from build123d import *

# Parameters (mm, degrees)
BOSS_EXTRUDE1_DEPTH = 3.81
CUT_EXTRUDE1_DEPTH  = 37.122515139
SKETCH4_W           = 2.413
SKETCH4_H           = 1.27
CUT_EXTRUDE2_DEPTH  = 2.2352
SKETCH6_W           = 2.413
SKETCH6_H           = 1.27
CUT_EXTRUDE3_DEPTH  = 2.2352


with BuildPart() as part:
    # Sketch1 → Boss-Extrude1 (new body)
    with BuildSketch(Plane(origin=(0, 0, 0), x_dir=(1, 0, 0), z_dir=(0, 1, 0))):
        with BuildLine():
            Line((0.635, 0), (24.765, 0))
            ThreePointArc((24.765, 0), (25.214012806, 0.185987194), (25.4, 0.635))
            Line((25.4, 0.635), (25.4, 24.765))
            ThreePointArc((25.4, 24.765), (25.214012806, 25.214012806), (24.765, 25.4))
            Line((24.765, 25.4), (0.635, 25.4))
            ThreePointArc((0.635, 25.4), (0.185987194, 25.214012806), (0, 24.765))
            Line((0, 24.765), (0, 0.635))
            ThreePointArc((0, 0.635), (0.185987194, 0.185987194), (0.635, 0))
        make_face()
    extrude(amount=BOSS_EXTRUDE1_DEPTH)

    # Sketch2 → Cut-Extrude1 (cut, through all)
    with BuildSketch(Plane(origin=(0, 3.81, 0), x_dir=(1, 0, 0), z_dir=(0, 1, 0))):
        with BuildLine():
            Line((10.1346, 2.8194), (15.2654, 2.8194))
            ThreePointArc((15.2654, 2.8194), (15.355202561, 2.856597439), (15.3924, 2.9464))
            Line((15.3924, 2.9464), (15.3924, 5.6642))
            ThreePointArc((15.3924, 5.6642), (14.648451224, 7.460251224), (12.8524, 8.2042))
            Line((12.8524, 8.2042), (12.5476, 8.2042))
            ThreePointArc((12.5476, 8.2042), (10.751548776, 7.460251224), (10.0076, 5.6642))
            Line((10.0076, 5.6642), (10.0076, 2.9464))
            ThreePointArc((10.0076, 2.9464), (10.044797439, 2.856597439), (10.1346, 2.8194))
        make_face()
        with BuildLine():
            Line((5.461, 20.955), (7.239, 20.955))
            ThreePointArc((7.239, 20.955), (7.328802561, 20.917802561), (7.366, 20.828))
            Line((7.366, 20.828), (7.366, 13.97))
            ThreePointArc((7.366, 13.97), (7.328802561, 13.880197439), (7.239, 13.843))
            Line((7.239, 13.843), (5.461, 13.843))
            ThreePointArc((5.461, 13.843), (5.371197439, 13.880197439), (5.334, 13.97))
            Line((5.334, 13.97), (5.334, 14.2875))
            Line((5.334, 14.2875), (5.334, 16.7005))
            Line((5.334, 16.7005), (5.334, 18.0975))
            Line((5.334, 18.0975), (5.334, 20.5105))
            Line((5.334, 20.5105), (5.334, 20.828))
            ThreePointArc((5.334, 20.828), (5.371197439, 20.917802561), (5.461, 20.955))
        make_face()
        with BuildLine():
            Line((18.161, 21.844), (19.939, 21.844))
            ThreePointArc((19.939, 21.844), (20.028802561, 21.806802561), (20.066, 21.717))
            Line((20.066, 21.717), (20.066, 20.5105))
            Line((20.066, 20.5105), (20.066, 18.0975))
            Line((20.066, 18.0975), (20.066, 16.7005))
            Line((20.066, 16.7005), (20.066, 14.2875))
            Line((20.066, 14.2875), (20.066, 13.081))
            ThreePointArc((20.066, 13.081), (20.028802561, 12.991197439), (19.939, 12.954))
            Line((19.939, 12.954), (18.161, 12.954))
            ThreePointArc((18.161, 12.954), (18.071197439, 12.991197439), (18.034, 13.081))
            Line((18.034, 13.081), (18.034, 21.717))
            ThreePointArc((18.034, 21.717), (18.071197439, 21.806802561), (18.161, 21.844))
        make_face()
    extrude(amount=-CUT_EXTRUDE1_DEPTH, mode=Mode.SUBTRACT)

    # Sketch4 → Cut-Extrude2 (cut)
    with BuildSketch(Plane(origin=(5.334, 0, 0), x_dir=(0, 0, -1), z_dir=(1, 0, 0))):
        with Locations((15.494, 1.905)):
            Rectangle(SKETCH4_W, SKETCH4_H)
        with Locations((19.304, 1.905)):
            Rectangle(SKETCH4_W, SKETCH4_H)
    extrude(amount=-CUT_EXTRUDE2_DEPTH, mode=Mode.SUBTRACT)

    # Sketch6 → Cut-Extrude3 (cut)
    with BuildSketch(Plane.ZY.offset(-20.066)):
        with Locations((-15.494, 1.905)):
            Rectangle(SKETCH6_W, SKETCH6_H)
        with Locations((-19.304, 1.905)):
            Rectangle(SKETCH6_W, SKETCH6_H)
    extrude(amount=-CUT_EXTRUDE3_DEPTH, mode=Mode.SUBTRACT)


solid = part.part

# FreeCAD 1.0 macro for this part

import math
import FreeCAD as App
import Part
import Sketcher
Q = App.Units.Quantity


def add_polygon(sketch, points):
    """Adds a closed chain of lines whose ends are joined by coincident constraints."""
    first, n = sketch.GeometryCount, len(points)
    for a, b in zip(points, points[1:] + points[:1]):
        sketch.addGeometry(Part.LineSegment(App.Vector(*a, 0), App.Vector(*b, 0)), False)
    for i in range(n):
        sketch.addConstraint(Sketcher.Constraint("Coincident", first + i, 2, first + (i + 1) % n, 1))

doc = App.newDocument("Part")
body = doc.addObject("PartDesign::Body", "Body")

# Sketch on XZ plane
sketch1 = body.newObject("Sketcher::SketchObject", "Sketch")
sketch1.AttachmentSupport = (doc.getObject("XZ_Plane"), [""])
sketch1.MapMode = "FlatFace"
sketch1.addGeometry([
    Part.LineSegment(App.Vector(0.6, 0, 0), App.Vector(24.8, 0, 0)),  # 0
    Part.ArcOfCircle(Part.Circle(App.Vector(24.8, -0.6, 0), App.Vector(0, 0, 1), 0.6), math.radians(0), math.radians(90)),  # 1
    Part.LineSegment(App.Vector(25.4, -0.6, 0), App.Vector(25.4, -24.8, 0)),  # 2
    Part.ArcOfCircle(Part.Circle(App.Vector(24.8, -24.8, 0), App.Vector(0, 0, 1), 0.6), math.radians(-90), math.radians(0)),  # 3
    Part.LineSegment(App.Vector(24.8, -25.4, 0), App.Vector(0.6, -25.4, 0)),  # 4
    Part.ArcOfCircle(Part.Circle(App.Vector(0.6, -24.8, 0), App.Vector(0, 0, 1), 0.6), math.radians(180), math.radians(270)),  # 5
    Part.LineSegment(App.Vector(0, -24.8, 0), App.Vector(0, -0.6, 0)),  # 6
    Part.ArcOfCircle(Part.Circle(App.Vector(0.6, -0.6, 0), App.Vector(0, 0, 1), 0.6), math.radians(90), math.radians(180)),  # 7
], False)
sketch1.addConstraint([
    Sketcher.Constraint("Tangent", 0, 2, 1, 2),
    Sketcher.Constraint("Tangent", 1, 1, 2, 1),
    Sketcher.Constraint("Tangent", 2, 2, 3, 2),
    Sketcher.Constraint("Tangent", 3, 1, 4, 1),
    Sketcher.Constraint("Tangent", 4, 2, 5, 2),
    Sketcher.Constraint("Tangent", 5, 1, 6, 1),
    Sketcher.Constraint("Tangent", 6, 2, 7, 2),
    Sketcher.Constraint("Tangent", 7, 1, 0, 1),
    Sketcher.Constraint("Horizontal", 0),
    Sketcher.Constraint("Vertical", 2),
    Sketcher.Constraint("Horizontal", 4),
    Sketcher.Constraint("Vertical", 6),
    Sketcher.Constraint("Equal", 1, 3),
    Sketcher.Constraint("Equal", 3, 5),
    Sketcher.Constraint("Equal", 5, 7),
    Sketcher.Constraint("PointOnObject", 0, 2, -1),
    Sketcher.Constraint("PointOnObject", 5, 1, -2),
    Sketcher.Constraint("Equal", 4, 2),
    Sketcher.Constraint("DistanceX", -1, 1, 1, 1, Q("1 in")),
    Sketcher.Constraint("Radius", 1, Q("0.025 in")),
])
pad1 = body.newObject("PartDesign::Pad", "Pad")
pad1.Profile = sketch1
pad1.Length = Q("0.15 in")
pad1.Reversed = True

# Sketch on XZ plane
sketch2 = body.newObject("Sketcher::SketchObject", "Sketch001")
sketch2.AttachmentSupport = (doc.getObject("XZ_Plane"), [""])
sketch2.MapMode = "FlatFace"
sketch2.AttachmentOffset = App.Placement(App.Vector(0, 0, -0.15 * 25.4), App.Rotation())
sketch2.addGeometry([
    Part.LineSegment(App.Vector(10.13, -2.82, 0), App.Vector(15.27, -2.82, 0)),  # 0
    Part.ArcOfCircle(Part.Circle(App.Vector(15.27, -2.95, 0), App.Vector(0, 0, 1), 0.13), math.radians(0), math.radians(90)),  # 1
    Part.LineSegment(App.Vector(15.39, -2.95, 0), App.Vector(15.39, -5.66, 0)),  # 2
    Part.ArcOfCircle(Part.Circle(App.Vector(12.85, -5.66, 0), App.Vector(0, 0, 1), 2.54), math.radians(-90), math.radians(0)),  # 3
    Part.LineSegment(App.Vector(12.85, -8.2, 0), App.Vector(12.55, -8.2, 0)),  # 4
    Part.ArcOfCircle(Part.Circle(App.Vector(12.55, -5.66, 0), App.Vector(0, 0, 1), 2.54), math.radians(-180), math.radians(-90)),  # 5
    Part.LineSegment(App.Vector(10.01, -5.66, 0), App.Vector(10.01, -2.95, 0)),  # 6
    Part.ArcOfCircle(Part.Circle(App.Vector(10.13, -2.95, 0), App.Vector(0, 0, 1), 0.13), math.radians(90), math.radians(180)),  # 7
    Part.LineSegment(App.Vector(7.24, -20.95, 0), App.Vector(5.46, -20.95, 0)),  # 8
    Part.ArcOfCircle(Part.Circle(App.Vector(5.46, -20.83, 0), App.Vector(0, 0, 1), 0.13), math.radians(-180), math.radians(-90)),  # 9
    Part.LineSegment(App.Vector(5.33, -20.83, 0), App.Vector(5.33, -13.97, 0)),  # 10
    Part.ArcOfCircle(Part.Circle(App.Vector(5.46, -13.97, 0), App.Vector(0, 0, 1), 0.13), math.radians(90), math.radians(180)),  # 11
    Part.LineSegment(App.Vector(5.46, -13.84, 0), App.Vector(7.24, -13.84, 0)),  # 12
    Part.ArcOfCircle(Part.Circle(App.Vector(7.24, -13.97, 0), App.Vector(0, 0, 1), 0.13), math.radians(0), math.radians(90)),  # 13
    Part.LineSegment(App.Vector(7.37, -13.97, 0), App.Vector(7.37, -20.83, 0)),  # 14
    Part.ArcOfCircle(Part.Circle(App.Vector(7.24, -20.83, 0), App.Vector(0, 0, 1), 0.13), math.radians(-90), math.radians(0)),  # 15
    Part.LineSegment(App.Vector(19.94, -21.84, 0), App.Vector(18.16, -21.84, 0)),  # 16
    Part.ArcOfCircle(Part.Circle(App.Vector(18.16, -21.72, 0), App.Vector(0, 0, 1), 0.13), math.radians(-180), math.radians(-90)),  # 17
    Part.LineSegment(App.Vector(18.03, -21.72, 0), App.Vector(18.03, -13.08, 0)),  # 18
    Part.ArcOfCircle(Part.Circle(App.Vector(18.16, -13.08, 0), App.Vector(0, 0, 1), 0.13), math.radians(90), math.radians(180)),  # 19
    Part.LineSegment(App.Vector(18.16, -12.95, 0), App.Vector(19.94, -12.95, 0)),  # 20
    Part.ArcOfCircle(Part.Circle(App.Vector(19.94, -13.08, 0), App.Vector(0, 0, 1), 0.13), math.radians(0), math.radians(90)),  # 21
    Part.LineSegment(App.Vector(20.07, -13.08, 0), App.Vector(20.07, -21.72, 0)),  # 22
    Part.ArcOfCircle(Part.Circle(App.Vector(19.94, -21.72, 0), App.Vector(0, 0, 1), 0.13), math.radians(-90), math.radians(0)),  # 23
], False)
sketch2.addConstraint([
    Sketcher.Constraint("Tangent", 0, 2, 1, 2),
    Sketcher.Constraint("Tangent", 1, 1, 2, 1),
    Sketcher.Constraint("Tangent", 2, 2, 3, 2),
    Sketcher.Constraint("Tangent", 3, 1, 4, 1),
    Sketcher.Constraint("Tangent", 4, 2, 5, 2),
    Sketcher.Constraint("Tangent", 5, 1, 6, 1),
    Sketcher.Constraint("Tangent", 6, 2, 7, 2),
    Sketcher.Constraint("Tangent", 7, 1, 0, 1),
    Sketcher.Constraint("Tangent", 8, 2, 9, 2),
    Sketcher.Constraint("Tangent", 9, 1, 10, 1),
    Sketcher.Constraint("Tangent", 10, 2, 11, 2),
    Sketcher.Constraint("Tangent", 11, 1, 12, 1),
    Sketcher.Constraint("Tangent", 12, 2, 13, 2),
    Sketcher.Constraint("Tangent", 13, 1, 14, 1),
    Sketcher.Constraint("Tangent", 14, 2, 15, 2),
    Sketcher.Constraint("Tangent", 15, 1, 8, 1),
    Sketcher.Constraint("Tangent", 16, 2, 17, 2),
    Sketcher.Constraint("Tangent", 17, 1, 18, 1),
    Sketcher.Constraint("Tangent", 18, 2, 19, 2),
    Sketcher.Constraint("Tangent", 19, 1, 20, 1),
    Sketcher.Constraint("Tangent", 20, 2, 21, 2),
    Sketcher.Constraint("Tangent", 21, 1, 22, 1),
    Sketcher.Constraint("Tangent", 22, 2, 23, 2),
    Sketcher.Constraint("Tangent", 23, 1, 16, 1),
    Sketcher.Constraint("Horizontal", 0),
    Sketcher.Constraint("Vertical", 2),
    Sketcher.Constraint("Horizontal", 4),
    Sketcher.Constraint("Vertical", 6),
    Sketcher.Constraint("Horizontal", 8),
    Sketcher.Constraint("Vertical", 10),
    Sketcher.Constraint("Horizontal", 12),
    Sketcher.Constraint("Vertical", 14),
    Sketcher.Constraint("Horizontal", 16),
    Sketcher.Constraint("Vertical", 18),
    Sketcher.Constraint("Horizontal", 20),
    Sketcher.Constraint("Vertical", 22),
    Sketcher.Constraint("Equal", 3, 5),
    Sketcher.Constraint("Equal", 1, 7),
    Sketcher.Constraint("Equal", 7, 9),
    Sketcher.Constraint("Equal", 9, 11),
    Sketcher.Constraint("Equal", 11, 13),
    Sketcher.Constraint("Equal", 13, 15),
    Sketcher.Constraint("Equal", 15, 17),
    Sketcher.Constraint("Equal", 17, 19),
    Sketcher.Constraint("Equal", 19, 21),
    Sketcher.Constraint("Equal", 21, 23),
    Sketcher.Constraint("Equal", 12, 16),
    Sketcher.Constraint("Radius", 3, Q("0.1 in")),
    Sketcher.Constraint("Radius", 1, Q("0.005 in")),
    Sketcher.Constraint("DistanceX", 8, 2, 8, 1, Q("0.07 in")),
    Sketcher.Constraint("DistanceY", 10, 1, 10, 2, Q("0.27 in")),
    Sketcher.Constraint("DistanceY", 18, 1, 18, 2, Q("0.34 in")),
    Sketcher.Constraint("DistanceX", 9, 3, 17, 3, Q("0.5 in")),
    Sketcher.Constraint("DistanceX", 0, 1, 0, 2, Q("0.202 in")),
    Sketcher.Constraint("DistanceY", 2, 2, 2, 1, Q("0.107 in")),
    Sketcher.Constraint("DistanceY", 9, 3, -1, 1, Q("0.82 in")),
    Sketcher.Constraint("DistanceX", -1, 1, 9, 1, Q("0.21 in")),
    Sketcher.Constraint("DistanceY", 16, 2, -1, 1, Q("0.86 in")),
    Sketcher.Constraint("DistanceX", -1, 1, 1, 3, Q("0.601 in")),
    Sketcher.Constraint("DistanceY", 1, 3, -1, 1, Q("0.116 in")),
])
pocket1 = body.newObject("PartDesign::Pocket", "Pocket")
pocket1.Profile = sketch2
pocket1.Type = "ThroughAll"
pocket1.Reversed = True

# Sketch on YZ plane
sketch3 = body.newObject("Sketcher::SketchObject", "Sketch002")
sketch3.AttachmentSupport = (doc.getObject("YZ_Plane"), [""])
sketch3.MapMode = "FlatFace"
sketch3.AttachmentOffset = App.Placement(App.Vector(0, 0, 0.21 * 25.4), App.Rotation())
add_polygon(sketch3, [(2.5, -14.3), (1.3, -14.3), (1.3, -16.7), (2.5, -16.7)])  # lines 0-3
add_polygon(sketch3, [(2.5, -18.1), (1.3, -18.1), (1.3, -20.5), (2.5, -20.5)])  # lines 4-7
sketch3.addConstraint([
    Sketcher.Constraint("Horizontal", 0),
    Sketcher.Constraint("Vertical", 1),
    Sketcher.Constraint("Horizontal", 2),
    Sketcher.Constraint("Vertical", 3),
    Sketcher.Constraint("Horizontal", 4),
    Sketcher.Constraint("Vertical", 5),
    Sketcher.Constraint("Horizontal", 6),
    Sketcher.Constraint("Vertical", 7),
    Sketcher.Constraint("Vertical", 1, 2, 4, 2),
    Sketcher.Constraint("Vertical", 3, 2, 6, 2),
    Sketcher.Constraint("Equal", 3, 5),
    Sketcher.Constraint("DistanceX", 0, 2, 0, 1, Q("0.05 in")),
    Sketcher.Constraint("DistanceX", -1, 1, 2, 2, Q("0.1 in")),
    Sketcher.Constraint("DistanceY", 1, 2, 1, 1, Q("0.095 in")),
    Sketcher.Constraint("DistanceY", 4, 2, 0, 2, Q("0.15 in")),
    Sketcher.Constraint("DistanceY", 0, 2, -1, 1, Q("0.5625 in")),
])
pocket2 = body.newObject("PartDesign::Pocket", "Pocket001")
pocket2.Profile = sketch3
pocket2.Length = Q("0.088 in")

# Sketch on YZ plane
sketch4 = body.newObject("Sketcher::SketchObject", "Sketch003")
sketch4.AttachmentSupport = (doc.getObject("YZ_Plane"), [""])
sketch4.MapMode = "FlatFace"
sketch4.AttachmentOffset = App.Placement(App.Vector(0, 0, 0.79 * 25.4), App.Rotation())
add_polygon(sketch4, [(2.5, -16.7), (1.3, -16.7), (1.3, -14.3), (2.5, -14.3)])  # lines 0-3
add_polygon(sketch4, [(2.5, -20.5), (1.3, -20.5), (1.3, -18.1), (2.5, -18.1)])  # lines 4-7
sketch4.addConstraint([
    Sketcher.Constraint("Horizontal", 0),
    Sketcher.Constraint("Vertical", 1),
    Sketcher.Constraint("Horizontal", 2),
    Sketcher.Constraint("Vertical", 3),
    Sketcher.Constraint("Horizontal", 4),
    Sketcher.Constraint("Vertical", 5),
    Sketcher.Constraint("Horizontal", 6),
    Sketcher.Constraint("Vertical", 7),
    Sketcher.Constraint("Vertical", 1, 2, 4, 2),
    Sketcher.Constraint("Vertical", 3, 2, 6, 2),
    Sketcher.Constraint("Equal", 3, 5),
    Sketcher.Constraint("DistanceX", 0, 2, 0, 1, Q("0.05 in")),
    Sketcher.Constraint("DistanceX", -1, 1, 2, 2, Q("0.1 in")),
    Sketcher.Constraint("DistanceY", 1, 1, 1, 2, Q("0.095 in")),
    Sketcher.Constraint("DistanceY", 4, 2, 0, 2, Q("0.15 in")),
    Sketcher.Constraint("DistanceY", 1, 2, -1, 1, Q("0.5625 in")),
])
pocket3 = body.newObject("PartDesign::Pocket", "Pocket002")
pocket3.Profile = sketch4
pocket3.Length = Q("0.088 in")
pocket3.Reversed = True

doc.recompute()
